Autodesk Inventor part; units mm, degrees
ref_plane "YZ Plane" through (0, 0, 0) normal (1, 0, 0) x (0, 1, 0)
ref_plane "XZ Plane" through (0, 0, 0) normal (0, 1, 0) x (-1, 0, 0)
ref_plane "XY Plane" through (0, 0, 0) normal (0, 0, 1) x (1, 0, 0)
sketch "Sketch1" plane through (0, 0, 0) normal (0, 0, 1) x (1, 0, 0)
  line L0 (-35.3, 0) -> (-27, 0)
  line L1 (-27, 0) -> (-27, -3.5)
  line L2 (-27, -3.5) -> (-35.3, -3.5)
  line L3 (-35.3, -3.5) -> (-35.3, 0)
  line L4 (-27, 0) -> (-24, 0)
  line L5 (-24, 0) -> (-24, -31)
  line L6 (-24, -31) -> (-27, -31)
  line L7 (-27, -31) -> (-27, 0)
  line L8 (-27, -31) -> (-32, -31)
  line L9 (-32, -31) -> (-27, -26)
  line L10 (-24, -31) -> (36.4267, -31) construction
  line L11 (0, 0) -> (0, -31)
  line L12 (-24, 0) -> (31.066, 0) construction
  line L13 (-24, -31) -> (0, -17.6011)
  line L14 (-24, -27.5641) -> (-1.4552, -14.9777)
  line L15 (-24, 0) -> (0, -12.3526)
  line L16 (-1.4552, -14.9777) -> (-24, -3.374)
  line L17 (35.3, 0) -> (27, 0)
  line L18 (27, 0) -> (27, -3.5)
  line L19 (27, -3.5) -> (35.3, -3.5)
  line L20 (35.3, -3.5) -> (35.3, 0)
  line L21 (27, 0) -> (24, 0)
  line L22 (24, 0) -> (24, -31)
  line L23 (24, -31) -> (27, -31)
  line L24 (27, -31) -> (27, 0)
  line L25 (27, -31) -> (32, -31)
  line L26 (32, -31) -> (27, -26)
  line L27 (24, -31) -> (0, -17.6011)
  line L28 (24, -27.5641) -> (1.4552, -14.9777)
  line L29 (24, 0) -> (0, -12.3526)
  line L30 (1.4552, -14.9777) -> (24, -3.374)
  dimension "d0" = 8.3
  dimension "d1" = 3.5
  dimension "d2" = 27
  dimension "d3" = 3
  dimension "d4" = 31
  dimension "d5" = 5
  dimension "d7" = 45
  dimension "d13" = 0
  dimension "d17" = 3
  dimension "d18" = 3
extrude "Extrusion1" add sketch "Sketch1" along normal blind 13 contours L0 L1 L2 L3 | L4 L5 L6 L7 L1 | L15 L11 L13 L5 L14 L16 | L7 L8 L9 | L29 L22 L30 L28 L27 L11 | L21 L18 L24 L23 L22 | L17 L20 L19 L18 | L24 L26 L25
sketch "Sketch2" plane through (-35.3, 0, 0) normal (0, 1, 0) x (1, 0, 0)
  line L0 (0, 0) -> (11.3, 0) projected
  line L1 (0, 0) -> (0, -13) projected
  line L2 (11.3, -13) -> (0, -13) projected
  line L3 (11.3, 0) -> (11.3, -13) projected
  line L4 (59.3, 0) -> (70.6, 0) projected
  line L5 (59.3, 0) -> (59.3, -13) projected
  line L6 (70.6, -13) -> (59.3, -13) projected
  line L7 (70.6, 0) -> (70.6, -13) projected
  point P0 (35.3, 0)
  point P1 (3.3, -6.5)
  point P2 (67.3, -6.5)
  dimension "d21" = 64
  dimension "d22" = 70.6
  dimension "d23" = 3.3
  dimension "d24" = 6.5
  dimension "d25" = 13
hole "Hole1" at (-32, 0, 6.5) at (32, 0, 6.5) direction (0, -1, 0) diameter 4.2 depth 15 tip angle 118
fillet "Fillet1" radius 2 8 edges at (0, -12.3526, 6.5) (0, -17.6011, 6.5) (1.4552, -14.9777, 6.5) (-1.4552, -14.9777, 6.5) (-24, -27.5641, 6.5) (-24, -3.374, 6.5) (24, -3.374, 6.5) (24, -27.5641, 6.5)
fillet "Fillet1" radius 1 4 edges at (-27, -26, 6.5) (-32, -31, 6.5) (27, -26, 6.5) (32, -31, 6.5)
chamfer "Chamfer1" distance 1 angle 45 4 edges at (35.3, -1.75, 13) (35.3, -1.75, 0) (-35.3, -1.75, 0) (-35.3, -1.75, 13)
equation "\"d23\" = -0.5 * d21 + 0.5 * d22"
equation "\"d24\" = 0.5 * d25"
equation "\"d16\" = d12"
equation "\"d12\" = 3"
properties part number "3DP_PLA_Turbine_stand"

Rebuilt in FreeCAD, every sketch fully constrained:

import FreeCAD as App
import Part
import Sketcher

V = App.Vector


def edges_at(feature, points):
    """Names of the edges that pass closest to the given points."""
    edges = feature.Shape.Edges
    near = lambda p: min(range(len(edges)), key=lambda i: edges[i].distToShape(Part.Vertex(*p))[0])
    return sorted({f"Edge{near(p) + 1}" for p in points})

doc = App.newDocument("Part")
body = doc.addObject("PartDesign::Body", "Body")

# Sketch on XY plane
sketch1 = doc.addObject("Sketcher::SketchObject", "Sketch")
body.addObject(sketch1)
sketch1.AttachmentSupport = (doc.XY_Plane, [""])
sketch1.MapMode = "FlatFace"
sketch1.addGeometry([
    Part.LineSegment(V(-35.3, 0, 0), V(-35.3, -3.5, 0)),  # 0
    Part.LineSegment(V(-35.3, -3.5, 0), V(-27, -3.5, 0)),  # 1
    Part.LineSegment(V(-27, -3.5, 0), V(-27, -26, 0)),  # 2
    Part.LineSegment(V(-27, -26, 0), V(-32, -31, 0)),  # 3
    Part.LineSegment(V(-32, -31, 0), V(-24, -31, 0)),  # 4
    Part.LineSegment(V(-24, -31, 0), V(0, -17.6, 0)),  # 5
    Part.LineSegment(V(0, -17.6, 0), V(24, -31, 0)),  # 6
    Part.LineSegment(V(24, -31, 0), V(32, -31, 0)),  # 7
    Part.LineSegment(V(32, -31, 0), V(27, -26, 0)),  # 8
    Part.LineSegment(V(27, -26, 0), V(27, -3.5, 0)),  # 9
    Part.LineSegment(V(27, -3.5, 0), V(35.3, -3.5, 0)),  # 10
    Part.LineSegment(V(35.3, -3.5, 0), V(35.3, 0, 0)),  # 11
    Part.LineSegment(V(35.3, 0, 0), V(24, 0, 0)),  # 12
    Part.LineSegment(V(24, 0, 0), V(0, -12.4, 0)),  # 13
    Part.LineSegment(V(0, -12.4, 0), V(-24, 0, 0)),  # 14
    Part.LineSegment(V(-24, 0, 0), V(-35.3, 0, 0)),  # 15
    Part.LineSegment(V(-24, -27.6, 0), V(-24, -3.4, 0)),  # 16
    Part.LineSegment(V(-24, -3.4, 0), V(-1.5, -15, 0)),  # 17
    Part.LineSegment(V(-1.5, -15, 0), V(-24, -27.6, 0)),  # 18
    Part.LineSegment(V(1.5, -15, 0), V(24, -3.4, 0)),  # 19
    Part.LineSegment(V(24, -3.4, 0), V(24, -27.6, 0)),  # 20
    Part.LineSegment(V(24, -27.6, 0), V(1.5, -15, 0)),  # 21
], False)
sketch1.addConstraint([
    Sketcher.Constraint("Coincident", 0, 2, 1, 1),
    Sketcher.Constraint("Coincident", 1, 2, 2, 1),
    Sketcher.Constraint("Coincident", 2, 2, 3, 1),
    Sketcher.Constraint("Coincident", 3, 2, 4, 1),
    Sketcher.Constraint("Coincident", 4, 2, 5, 1),
    Sketcher.Constraint("Coincident", 5, 2, 6, 1),
    Sketcher.Constraint("Coincident", 6, 2, 7, 1),
    Sketcher.Constraint("Coincident", 7, 2, 8, 1),
    Sketcher.Constraint("Coincident", 8, 2, 9, 1),
    Sketcher.Constraint("Coincident", 9, 2, 10, 1),
    Sketcher.Constraint("Coincident", 10, 2, 11, 1),
    Sketcher.Constraint("Coincident", 11, 2, 12, 1),
    Sketcher.Constraint("Coincident", 12, 2, 13, 1),
    Sketcher.Constraint("Coincident", 13, 2, 14, 1),
    Sketcher.Constraint("Coincident", 14, 2, 15, 1),
    Sketcher.Constraint("Coincident", 15, 2, 0, 1),
    Sketcher.Constraint("Coincident", 16, 2, 17, 1),
    Sketcher.Constraint("Coincident", 17, 2, 18, 1),
    Sketcher.Constraint("Coincident", 18, 2, 16, 1),
    Sketcher.Constraint("Coincident", 19, 2, 20, 1),
    Sketcher.Constraint("Coincident", 20, 2, 21, 1),
    Sketcher.Constraint("Coincident", 21, 2, 19, 1),
    Sketcher.Constraint("Vertical", 0),
    Sketcher.Constraint("Horizontal", 1),
    Sketcher.Constraint("Vertical", 2),
    Sketcher.Constraint("Horizontal", 4),
    Sketcher.Constraint("Horizontal", 7),
    Sketcher.Constraint("Vertical", 9),
    Sketcher.Constraint("Horizontal", 10),
    Sketcher.Constraint("Vertical", 11),
    Sketcher.Constraint("Horizontal", 12),
    Sketcher.Constraint("Horizontal", 15),
    Sketcher.Constraint("Vertical", 16),
    Sketcher.Constraint("Vertical", 20),
    Sketcher.Constraint("Symmetric", 12, 2, 14, 2, -1, 1),
    Sketcher.Constraint("Symmetric", 4, 2, 6, 2, -2),
    Sketcher.Constraint("Symmetric", 2, 2, 8, 2, -2),
    Sketcher.Constraint("Symmetric", 0, 2, 10, 2, -2),
    Sketcher.Constraint("Symmetric", 16, 2, 19, 2, -2),
    Sketcher.Constraint("Symmetric", 17, 2, 21, 2, -2),
    Sketcher.Constraint("PointOnObject", 5, 2, -2),
    Sketcher.Constraint("PointOnObject", 11, 2, -1),
    Sketcher.Constraint("PointOnObject", 13, 2, -2),
    Sketcher.Constraint("Perpendicular", 3, 8),
    Sketcher.Constraint("Parallel", 14, 17),
    Sketcher.Constraint("Parallel", 5, 18),
    Sketcher.Constraint("Parallel", 6, 21),
    Sketcher.Constraint("Vertical", 6, 2, 12, 2),
    Sketcher.Constraint("Vertical", 14, 2, 16, 2),
    Sketcher.Constraint("Equal", 4, 7),
    Sketcher.Constraint("DistanceX", 1, 1, 1, 2, 8.3),
    Sketcher.Constraint("DistanceY", 0, 2, 0, 1, 3.5),
    Sketcher.Constraint("DistanceX", 1, 2, -1, 1, 27.0),
    Sketcher.Constraint("DistanceY", 3, 2, -1, 1, 31.0),
    Sketcher.Constraint("DistanceX", 3, 2, 2, 2, 5.0),
    Sketcher.Constraint("DistanceX", 2, 2, 4, 2, 3.0),
    Sketcher.Constraint("DistanceY", 16, 1, 16, 2, 24.19),
    Sketcher.Constraint("Distance", 5, 27.487),
    Sketcher.Constraint("DistanceY", 16, 2, -1, 1, 3.374),
    Sketcher.Constraint("DistanceY", 17, 2, 13, 2, 2.625),
])
pad1 = doc.addObject("PartDesign::Pad", "Pad")
body.addObject(pad1)
pad1.Profile = sketch1
pad1.Length = 13

# Sketch on XZ plane
sketch2 = doc.addObject("Sketcher::SketchObject", "Sketch001")
body.addObject(sketch2)
sketch2.AttachmentSupport = (doc.XZ_Plane, [""])
sketch2.MapMode = "FlatFace"
sketch2.addGeometry([
    Part.Circle(V(-32, 6.5, 0), V(0, 0, 1), 2.1),
    Part.Circle(V(32, 6.5, 0), V(0, 0, 1), 2.1),
], False)
sketch2.addConstraint([
    Sketcher.Constraint("Equal", 0, 1),
    Sketcher.Constraint("Symmetric", 0, 3, 1, 3, -2),
    Sketcher.Constraint("Diameter", 0, 4.2),
    Sketcher.Constraint("DistanceX", 0, 3, -1, 1, 32.0),
    Sketcher.Constraint("DistanceY", -1, 1, 0, 3, 6.5),
])
doc.recompute()
hole = doc.addObject("PartDesign::Hole", "Hole")
body.addObject(hole)
hole.Profile = sketch2
hole.ThreadType = "None"
hole.Diameter = 4.2
hole.DepthType = "Dimension"
hole.Depth = 15
hole.DrillPoint = "Angled"
hole.DrillPointAngle = 118
hole.Reversed = True
doc.recompute()

fillet = doc.addObject("PartDesign::Fillet", "Fillet")
body.addObject(fillet)
fillet.Base = (hole, edges_at(hole, [
    (0, -12.353, 6.5),
    (0, -17.601, 6.5),
    (1.455, -14.978, 6.5),
    (-1.455, -14.978, 6.5),
    (-24, -27.564, 6.5),
    (-24, -3.374, 6.5),
    (24, -3.374, 6.5),
    (24, -27.564, 6.5),
]))
fillet.Radius = 2
doc.recompute()

fillet2 = doc.addObject("PartDesign::Fillet", "Fillet001")
body.addObject(fillet2)
fillet2.Base = (fillet, edges_at(fillet, [
    (-27, -26, 6.5),
    (-32, -31, 6.5),
    (27, -26, 6.5),
    (32, -31, 6.5),
]))
fillet2.Radius = 1
doc.recompute()

chamfer = doc.addObject("PartDesign::Chamfer", "Chamfer")
body.addObject(chamfer)
chamfer.Base = (fillet2, edges_at(fillet2, [
    (35.3, -1.75, 13),
    (35.3, -1.75, 0),
    (-35.3, -1.75, 0),
    (-35.3, -1.75, 13),
]))
chamfer.Size = 1

doc.recompute()
